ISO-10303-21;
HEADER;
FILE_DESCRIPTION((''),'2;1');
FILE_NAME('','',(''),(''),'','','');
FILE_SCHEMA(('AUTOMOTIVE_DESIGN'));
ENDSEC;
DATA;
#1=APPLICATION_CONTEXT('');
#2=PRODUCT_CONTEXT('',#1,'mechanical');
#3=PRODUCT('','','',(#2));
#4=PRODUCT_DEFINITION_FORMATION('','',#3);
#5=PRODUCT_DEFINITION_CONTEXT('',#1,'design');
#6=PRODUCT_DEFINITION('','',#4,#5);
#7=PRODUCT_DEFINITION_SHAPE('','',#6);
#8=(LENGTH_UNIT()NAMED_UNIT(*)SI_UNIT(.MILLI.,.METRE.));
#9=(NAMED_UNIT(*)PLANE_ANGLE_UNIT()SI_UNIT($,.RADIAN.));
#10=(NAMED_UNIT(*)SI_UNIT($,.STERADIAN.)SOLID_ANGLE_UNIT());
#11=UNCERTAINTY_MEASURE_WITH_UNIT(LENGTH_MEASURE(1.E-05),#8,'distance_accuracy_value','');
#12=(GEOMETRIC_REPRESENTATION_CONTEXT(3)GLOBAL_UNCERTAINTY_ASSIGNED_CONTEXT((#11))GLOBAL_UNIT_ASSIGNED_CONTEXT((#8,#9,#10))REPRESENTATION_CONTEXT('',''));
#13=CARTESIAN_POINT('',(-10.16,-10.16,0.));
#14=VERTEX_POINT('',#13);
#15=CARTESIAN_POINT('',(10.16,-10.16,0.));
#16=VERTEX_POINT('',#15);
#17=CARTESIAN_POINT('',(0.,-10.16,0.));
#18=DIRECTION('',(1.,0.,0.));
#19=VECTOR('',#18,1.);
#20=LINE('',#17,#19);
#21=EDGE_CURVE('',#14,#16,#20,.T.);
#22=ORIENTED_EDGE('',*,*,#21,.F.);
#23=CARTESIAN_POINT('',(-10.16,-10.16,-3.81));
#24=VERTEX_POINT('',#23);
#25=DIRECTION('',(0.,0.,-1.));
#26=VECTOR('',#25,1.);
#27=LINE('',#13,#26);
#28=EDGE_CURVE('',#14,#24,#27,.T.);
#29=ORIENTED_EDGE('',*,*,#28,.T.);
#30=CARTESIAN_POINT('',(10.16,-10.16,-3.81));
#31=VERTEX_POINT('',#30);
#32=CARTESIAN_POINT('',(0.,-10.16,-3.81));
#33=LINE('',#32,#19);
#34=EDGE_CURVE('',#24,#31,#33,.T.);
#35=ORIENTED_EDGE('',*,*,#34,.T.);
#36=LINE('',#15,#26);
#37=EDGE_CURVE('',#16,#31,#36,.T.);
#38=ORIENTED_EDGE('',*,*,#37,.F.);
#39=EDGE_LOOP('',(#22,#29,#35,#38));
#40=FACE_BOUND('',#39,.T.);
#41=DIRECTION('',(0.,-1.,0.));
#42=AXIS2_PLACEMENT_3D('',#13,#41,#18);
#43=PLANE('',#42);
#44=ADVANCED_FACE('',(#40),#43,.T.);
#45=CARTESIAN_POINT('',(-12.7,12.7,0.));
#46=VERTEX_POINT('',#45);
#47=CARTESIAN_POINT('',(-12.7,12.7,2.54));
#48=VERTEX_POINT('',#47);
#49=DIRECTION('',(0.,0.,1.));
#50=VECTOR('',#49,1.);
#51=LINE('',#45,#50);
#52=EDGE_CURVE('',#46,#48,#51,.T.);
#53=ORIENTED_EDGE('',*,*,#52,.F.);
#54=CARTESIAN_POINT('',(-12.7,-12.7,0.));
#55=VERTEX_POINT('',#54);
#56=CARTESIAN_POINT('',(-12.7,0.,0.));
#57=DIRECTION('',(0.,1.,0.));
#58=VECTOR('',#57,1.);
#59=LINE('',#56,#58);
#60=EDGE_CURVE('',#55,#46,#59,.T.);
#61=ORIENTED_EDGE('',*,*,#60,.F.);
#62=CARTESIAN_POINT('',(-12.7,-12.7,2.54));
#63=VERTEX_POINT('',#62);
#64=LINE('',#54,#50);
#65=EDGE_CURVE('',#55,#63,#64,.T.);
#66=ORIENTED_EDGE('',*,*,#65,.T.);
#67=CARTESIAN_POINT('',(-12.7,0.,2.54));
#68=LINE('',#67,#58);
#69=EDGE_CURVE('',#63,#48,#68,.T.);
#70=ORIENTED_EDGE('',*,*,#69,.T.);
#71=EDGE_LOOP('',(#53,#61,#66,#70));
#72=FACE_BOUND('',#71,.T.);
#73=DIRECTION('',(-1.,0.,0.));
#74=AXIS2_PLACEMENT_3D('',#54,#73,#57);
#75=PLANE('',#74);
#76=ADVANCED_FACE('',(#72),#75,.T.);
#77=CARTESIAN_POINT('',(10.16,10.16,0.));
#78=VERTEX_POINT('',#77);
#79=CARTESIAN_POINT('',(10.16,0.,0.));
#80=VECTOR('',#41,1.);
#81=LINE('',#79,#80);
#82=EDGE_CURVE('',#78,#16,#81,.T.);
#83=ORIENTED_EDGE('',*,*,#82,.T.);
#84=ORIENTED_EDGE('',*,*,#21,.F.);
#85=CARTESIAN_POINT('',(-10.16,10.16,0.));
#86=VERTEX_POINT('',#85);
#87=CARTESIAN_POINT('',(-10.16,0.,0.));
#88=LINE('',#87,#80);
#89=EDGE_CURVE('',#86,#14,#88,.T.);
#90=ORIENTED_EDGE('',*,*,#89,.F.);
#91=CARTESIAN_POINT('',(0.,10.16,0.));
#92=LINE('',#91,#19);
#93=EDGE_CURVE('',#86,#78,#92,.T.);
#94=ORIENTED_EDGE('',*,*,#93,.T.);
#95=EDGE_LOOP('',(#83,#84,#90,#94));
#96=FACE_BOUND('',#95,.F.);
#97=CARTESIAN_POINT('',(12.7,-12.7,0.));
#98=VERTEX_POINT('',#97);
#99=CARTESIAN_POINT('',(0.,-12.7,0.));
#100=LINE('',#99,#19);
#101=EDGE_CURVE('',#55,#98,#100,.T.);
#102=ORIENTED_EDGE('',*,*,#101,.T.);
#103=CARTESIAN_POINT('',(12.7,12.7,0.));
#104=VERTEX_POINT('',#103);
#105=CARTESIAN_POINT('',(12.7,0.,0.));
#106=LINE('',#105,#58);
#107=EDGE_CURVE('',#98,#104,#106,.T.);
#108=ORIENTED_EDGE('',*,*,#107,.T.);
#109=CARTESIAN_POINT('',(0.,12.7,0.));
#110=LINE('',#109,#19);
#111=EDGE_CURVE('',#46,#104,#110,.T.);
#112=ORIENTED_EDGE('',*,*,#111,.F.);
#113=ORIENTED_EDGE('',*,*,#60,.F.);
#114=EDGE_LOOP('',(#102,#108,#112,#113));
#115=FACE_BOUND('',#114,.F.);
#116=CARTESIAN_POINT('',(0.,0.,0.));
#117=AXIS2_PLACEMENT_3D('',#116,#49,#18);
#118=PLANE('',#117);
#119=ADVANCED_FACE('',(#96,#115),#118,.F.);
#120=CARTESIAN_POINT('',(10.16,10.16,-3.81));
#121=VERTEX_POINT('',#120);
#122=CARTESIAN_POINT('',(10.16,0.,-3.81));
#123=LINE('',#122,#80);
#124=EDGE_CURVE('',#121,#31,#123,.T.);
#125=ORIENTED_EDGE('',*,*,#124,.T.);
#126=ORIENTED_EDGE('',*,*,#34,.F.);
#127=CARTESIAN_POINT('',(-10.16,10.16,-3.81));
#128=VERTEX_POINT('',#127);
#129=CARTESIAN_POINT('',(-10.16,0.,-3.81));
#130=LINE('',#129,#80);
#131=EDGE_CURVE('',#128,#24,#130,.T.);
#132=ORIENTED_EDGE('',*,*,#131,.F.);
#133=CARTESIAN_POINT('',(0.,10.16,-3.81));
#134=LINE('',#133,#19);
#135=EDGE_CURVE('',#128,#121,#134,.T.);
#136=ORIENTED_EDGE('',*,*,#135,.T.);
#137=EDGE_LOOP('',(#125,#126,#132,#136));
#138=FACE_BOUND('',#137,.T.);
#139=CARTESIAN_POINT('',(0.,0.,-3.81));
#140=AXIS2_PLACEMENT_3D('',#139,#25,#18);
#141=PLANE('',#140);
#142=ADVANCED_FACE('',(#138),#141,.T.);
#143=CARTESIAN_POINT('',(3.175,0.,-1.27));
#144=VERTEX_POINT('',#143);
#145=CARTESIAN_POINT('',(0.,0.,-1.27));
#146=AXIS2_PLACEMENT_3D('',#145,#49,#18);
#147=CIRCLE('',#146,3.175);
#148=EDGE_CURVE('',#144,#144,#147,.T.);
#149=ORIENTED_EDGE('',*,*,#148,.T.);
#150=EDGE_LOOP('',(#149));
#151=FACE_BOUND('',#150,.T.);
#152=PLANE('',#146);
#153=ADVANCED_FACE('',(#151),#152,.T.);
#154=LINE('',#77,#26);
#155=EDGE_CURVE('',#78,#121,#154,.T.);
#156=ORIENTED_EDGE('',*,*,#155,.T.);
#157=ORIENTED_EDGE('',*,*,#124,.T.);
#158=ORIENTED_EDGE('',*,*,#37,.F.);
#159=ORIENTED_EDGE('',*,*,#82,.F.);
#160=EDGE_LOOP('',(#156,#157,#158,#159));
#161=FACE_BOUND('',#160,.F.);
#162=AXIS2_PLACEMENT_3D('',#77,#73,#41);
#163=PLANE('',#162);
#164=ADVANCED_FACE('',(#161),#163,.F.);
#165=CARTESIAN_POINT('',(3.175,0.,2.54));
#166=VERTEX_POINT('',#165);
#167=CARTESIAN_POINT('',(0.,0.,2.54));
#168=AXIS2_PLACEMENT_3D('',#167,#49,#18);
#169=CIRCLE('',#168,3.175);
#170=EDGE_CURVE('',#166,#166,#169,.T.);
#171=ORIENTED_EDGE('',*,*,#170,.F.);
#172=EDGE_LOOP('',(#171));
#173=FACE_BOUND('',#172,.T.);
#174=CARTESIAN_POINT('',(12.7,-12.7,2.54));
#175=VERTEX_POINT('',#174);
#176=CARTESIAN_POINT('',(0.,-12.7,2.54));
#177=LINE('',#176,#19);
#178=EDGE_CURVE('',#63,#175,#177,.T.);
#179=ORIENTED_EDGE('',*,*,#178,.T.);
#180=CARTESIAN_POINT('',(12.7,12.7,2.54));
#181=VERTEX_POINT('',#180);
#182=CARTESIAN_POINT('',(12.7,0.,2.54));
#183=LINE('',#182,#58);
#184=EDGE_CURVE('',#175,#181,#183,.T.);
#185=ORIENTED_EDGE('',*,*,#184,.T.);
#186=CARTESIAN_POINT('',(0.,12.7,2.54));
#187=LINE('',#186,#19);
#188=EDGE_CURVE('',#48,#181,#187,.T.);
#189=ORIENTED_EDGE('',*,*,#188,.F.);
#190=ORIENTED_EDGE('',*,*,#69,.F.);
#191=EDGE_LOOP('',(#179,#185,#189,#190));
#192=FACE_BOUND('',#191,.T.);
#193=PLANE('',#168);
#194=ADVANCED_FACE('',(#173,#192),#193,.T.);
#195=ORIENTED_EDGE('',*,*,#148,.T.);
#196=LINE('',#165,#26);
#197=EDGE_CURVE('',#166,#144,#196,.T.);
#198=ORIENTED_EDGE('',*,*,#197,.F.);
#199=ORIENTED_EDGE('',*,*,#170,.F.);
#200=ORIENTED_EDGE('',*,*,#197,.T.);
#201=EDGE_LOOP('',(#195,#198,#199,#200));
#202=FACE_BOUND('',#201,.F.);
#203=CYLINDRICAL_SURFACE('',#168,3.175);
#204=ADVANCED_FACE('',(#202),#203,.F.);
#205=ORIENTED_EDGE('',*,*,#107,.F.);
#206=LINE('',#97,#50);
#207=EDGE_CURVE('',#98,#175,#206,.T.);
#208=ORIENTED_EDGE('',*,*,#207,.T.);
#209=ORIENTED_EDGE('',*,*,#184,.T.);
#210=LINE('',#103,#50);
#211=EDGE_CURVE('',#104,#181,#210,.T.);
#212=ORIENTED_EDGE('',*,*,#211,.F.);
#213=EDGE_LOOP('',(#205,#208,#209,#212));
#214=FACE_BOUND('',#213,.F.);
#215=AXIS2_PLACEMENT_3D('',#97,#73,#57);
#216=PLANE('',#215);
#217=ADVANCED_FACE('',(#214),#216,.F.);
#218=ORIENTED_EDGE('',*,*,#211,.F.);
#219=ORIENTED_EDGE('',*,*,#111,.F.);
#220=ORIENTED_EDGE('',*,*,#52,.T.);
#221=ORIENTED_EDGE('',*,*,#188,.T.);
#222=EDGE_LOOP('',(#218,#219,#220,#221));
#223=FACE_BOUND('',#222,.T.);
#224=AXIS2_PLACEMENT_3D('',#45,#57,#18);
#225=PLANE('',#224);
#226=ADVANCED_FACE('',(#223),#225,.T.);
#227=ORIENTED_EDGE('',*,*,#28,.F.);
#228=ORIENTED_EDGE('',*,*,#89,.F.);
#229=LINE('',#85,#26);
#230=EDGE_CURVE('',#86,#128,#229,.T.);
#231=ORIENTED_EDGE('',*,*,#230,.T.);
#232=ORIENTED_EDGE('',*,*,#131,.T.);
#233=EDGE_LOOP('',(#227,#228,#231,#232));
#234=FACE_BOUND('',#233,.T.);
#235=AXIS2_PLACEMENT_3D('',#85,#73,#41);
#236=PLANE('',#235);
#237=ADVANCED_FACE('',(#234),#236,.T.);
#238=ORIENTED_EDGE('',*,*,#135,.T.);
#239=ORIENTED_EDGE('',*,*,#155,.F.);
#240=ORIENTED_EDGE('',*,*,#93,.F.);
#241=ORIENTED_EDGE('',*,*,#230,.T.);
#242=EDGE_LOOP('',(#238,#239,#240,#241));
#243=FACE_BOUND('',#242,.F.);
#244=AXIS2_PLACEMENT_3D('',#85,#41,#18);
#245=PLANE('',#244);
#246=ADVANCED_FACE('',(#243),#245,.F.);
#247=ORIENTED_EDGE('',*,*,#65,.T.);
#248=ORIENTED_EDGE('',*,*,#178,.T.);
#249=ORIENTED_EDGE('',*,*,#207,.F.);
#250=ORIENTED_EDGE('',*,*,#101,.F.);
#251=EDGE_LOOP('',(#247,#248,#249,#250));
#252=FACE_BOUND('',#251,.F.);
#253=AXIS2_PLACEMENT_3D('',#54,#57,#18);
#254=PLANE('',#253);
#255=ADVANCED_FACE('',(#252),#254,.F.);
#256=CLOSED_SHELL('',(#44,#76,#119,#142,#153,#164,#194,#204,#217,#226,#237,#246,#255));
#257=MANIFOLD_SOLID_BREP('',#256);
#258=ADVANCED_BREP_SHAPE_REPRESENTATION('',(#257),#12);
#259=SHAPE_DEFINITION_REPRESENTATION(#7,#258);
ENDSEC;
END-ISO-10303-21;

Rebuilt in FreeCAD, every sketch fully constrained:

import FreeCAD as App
import Part
import Sketcher
from FreeCAD import Vector
Q = App.Units.Quantity

doc = App.newDocument("Part")
body = doc.addObject("PartDesign::Body", "Body")

# Sketch on XY plane
sketch1 = body.newObject("Sketcher::SketchObject", "Sketch")
sketch1.AttachmentSupport = (doc.getObject("XY_Plane"), [""])
sketch1.MapMode = "FlatFace"
sketch1.addGeometry([
    Part.LineSegment(Vector(-13, 13, 0), Vector(-13, -13, 0)),
    Part.LineSegment(Vector(-13, -13, 0), Vector(13, -13, 0)),
    Part.LineSegment(Vector(13, -13, 0), Vector(13, 13, 0)),
    Part.LineSegment(Vector(13, 13, 0), Vector(-13, 13, 0)),
], False)
sketch1.addConstraint([
    Sketcher.Constraint("Coincident", 0, 2, 1, 1),
    Sketcher.Constraint("Coincident", 1, 2, 2, 1),
    Sketcher.Constraint("Coincident", 2, 2, 3, 1),
    Sketcher.Constraint("Coincident", 3, 2, 0, 1),
    Sketcher.Constraint("Vertical", 0),
    Sketcher.Constraint("Horizontal", 1),
    Sketcher.Constraint("Vertical", 2),
    Sketcher.Constraint("Horizontal", 3),
    Sketcher.Constraint("Symmetric", 0, 2, 2, 2, -1, 1),
    Sketcher.Constraint("Equal", 3, 0),
    Sketcher.Constraint("DistanceX", 1, 1, 1, 2, Q("1 in")),
])
pad1 = body.newObject("PartDesign::Pad", "Pad")
pad1.Profile = sketch1
pad1.Length = Q("0.1 in")

# Sketch on XY plane
sketch2 = body.newObject("Sketcher::SketchObject", "Sketch001")
sketch2.AttachmentSupport = (doc.getObject("XY_Plane"), [""])
sketch2.MapMode = "FlatFace"
sketch2.addGeometry([
    Part.LineSegment(Vector(-10, -10, 0), Vector(-10, 10, 0)),
    Part.LineSegment(Vector(-10, 10, 0), Vector(10, 10, 0)),
    Part.LineSegment(Vector(10, 10, 0), Vector(10, -10, 0)),
    Part.LineSegment(Vector(10, -10, 0), Vector(-10, -10, 0)),
], False)
sketch2.addConstraint([
    Sketcher.Constraint("Coincident", 0, 2, 1, 1),
    Sketcher.Constraint("Coincident", 1, 2, 2, 1),
    Sketcher.Constraint("Coincident", 2, 2, 3, 1),
    Sketcher.Constraint("Coincident", 3, 2, 0, 1),
    Sketcher.Constraint("Vertical", 0),
    Sketcher.Constraint("Horizontal", 1),
    Sketcher.Constraint("Vertical", 2),
    Sketcher.Constraint("Horizontal", 3),
    Sketcher.Constraint("Symmetric", 0, 2, 2, 2, -1, 1),
    Sketcher.Constraint("Equal", 3, 0),
    Sketcher.Constraint("DistanceX", 1, 1, 1, 2, Q("0.8 in")),
])
pad2 = body.newObject("PartDesign::Pad", "Pad001")
pad2.Profile = sketch2
pad2.Length = Q("0.15 in")
pad2.Reversed = True

# Sketch on XY plane
sketch3 = body.newObject("Sketcher::SketchObject", "Sketch002")
sketch3.AttachmentSupport = (doc.getObject("XY_Plane"), [""])
sketch3.MapMode = "FlatFace"
sketch3.AttachmentOffset = App.Placement(Vector(0, 0, 0.1 * 25.4), App.Rotation())
sketch3.addGeometry(Part.Circle(Vector(0, 0, 0), Vector(0, 0, 1), 3.2), False)
sketch3.addConstraint([
    Sketcher.Constraint("Coincident", 0, 3, -1, 1),
    Sketcher.Constraint("Diameter", 0, Q("0.25 in")),
])
pocket1 = body.newObject("PartDesign::Pocket", "Pocket")
pocket1.Profile = sketch3
pocket1.Length = Q("0.15 in")

doc.recompute()
